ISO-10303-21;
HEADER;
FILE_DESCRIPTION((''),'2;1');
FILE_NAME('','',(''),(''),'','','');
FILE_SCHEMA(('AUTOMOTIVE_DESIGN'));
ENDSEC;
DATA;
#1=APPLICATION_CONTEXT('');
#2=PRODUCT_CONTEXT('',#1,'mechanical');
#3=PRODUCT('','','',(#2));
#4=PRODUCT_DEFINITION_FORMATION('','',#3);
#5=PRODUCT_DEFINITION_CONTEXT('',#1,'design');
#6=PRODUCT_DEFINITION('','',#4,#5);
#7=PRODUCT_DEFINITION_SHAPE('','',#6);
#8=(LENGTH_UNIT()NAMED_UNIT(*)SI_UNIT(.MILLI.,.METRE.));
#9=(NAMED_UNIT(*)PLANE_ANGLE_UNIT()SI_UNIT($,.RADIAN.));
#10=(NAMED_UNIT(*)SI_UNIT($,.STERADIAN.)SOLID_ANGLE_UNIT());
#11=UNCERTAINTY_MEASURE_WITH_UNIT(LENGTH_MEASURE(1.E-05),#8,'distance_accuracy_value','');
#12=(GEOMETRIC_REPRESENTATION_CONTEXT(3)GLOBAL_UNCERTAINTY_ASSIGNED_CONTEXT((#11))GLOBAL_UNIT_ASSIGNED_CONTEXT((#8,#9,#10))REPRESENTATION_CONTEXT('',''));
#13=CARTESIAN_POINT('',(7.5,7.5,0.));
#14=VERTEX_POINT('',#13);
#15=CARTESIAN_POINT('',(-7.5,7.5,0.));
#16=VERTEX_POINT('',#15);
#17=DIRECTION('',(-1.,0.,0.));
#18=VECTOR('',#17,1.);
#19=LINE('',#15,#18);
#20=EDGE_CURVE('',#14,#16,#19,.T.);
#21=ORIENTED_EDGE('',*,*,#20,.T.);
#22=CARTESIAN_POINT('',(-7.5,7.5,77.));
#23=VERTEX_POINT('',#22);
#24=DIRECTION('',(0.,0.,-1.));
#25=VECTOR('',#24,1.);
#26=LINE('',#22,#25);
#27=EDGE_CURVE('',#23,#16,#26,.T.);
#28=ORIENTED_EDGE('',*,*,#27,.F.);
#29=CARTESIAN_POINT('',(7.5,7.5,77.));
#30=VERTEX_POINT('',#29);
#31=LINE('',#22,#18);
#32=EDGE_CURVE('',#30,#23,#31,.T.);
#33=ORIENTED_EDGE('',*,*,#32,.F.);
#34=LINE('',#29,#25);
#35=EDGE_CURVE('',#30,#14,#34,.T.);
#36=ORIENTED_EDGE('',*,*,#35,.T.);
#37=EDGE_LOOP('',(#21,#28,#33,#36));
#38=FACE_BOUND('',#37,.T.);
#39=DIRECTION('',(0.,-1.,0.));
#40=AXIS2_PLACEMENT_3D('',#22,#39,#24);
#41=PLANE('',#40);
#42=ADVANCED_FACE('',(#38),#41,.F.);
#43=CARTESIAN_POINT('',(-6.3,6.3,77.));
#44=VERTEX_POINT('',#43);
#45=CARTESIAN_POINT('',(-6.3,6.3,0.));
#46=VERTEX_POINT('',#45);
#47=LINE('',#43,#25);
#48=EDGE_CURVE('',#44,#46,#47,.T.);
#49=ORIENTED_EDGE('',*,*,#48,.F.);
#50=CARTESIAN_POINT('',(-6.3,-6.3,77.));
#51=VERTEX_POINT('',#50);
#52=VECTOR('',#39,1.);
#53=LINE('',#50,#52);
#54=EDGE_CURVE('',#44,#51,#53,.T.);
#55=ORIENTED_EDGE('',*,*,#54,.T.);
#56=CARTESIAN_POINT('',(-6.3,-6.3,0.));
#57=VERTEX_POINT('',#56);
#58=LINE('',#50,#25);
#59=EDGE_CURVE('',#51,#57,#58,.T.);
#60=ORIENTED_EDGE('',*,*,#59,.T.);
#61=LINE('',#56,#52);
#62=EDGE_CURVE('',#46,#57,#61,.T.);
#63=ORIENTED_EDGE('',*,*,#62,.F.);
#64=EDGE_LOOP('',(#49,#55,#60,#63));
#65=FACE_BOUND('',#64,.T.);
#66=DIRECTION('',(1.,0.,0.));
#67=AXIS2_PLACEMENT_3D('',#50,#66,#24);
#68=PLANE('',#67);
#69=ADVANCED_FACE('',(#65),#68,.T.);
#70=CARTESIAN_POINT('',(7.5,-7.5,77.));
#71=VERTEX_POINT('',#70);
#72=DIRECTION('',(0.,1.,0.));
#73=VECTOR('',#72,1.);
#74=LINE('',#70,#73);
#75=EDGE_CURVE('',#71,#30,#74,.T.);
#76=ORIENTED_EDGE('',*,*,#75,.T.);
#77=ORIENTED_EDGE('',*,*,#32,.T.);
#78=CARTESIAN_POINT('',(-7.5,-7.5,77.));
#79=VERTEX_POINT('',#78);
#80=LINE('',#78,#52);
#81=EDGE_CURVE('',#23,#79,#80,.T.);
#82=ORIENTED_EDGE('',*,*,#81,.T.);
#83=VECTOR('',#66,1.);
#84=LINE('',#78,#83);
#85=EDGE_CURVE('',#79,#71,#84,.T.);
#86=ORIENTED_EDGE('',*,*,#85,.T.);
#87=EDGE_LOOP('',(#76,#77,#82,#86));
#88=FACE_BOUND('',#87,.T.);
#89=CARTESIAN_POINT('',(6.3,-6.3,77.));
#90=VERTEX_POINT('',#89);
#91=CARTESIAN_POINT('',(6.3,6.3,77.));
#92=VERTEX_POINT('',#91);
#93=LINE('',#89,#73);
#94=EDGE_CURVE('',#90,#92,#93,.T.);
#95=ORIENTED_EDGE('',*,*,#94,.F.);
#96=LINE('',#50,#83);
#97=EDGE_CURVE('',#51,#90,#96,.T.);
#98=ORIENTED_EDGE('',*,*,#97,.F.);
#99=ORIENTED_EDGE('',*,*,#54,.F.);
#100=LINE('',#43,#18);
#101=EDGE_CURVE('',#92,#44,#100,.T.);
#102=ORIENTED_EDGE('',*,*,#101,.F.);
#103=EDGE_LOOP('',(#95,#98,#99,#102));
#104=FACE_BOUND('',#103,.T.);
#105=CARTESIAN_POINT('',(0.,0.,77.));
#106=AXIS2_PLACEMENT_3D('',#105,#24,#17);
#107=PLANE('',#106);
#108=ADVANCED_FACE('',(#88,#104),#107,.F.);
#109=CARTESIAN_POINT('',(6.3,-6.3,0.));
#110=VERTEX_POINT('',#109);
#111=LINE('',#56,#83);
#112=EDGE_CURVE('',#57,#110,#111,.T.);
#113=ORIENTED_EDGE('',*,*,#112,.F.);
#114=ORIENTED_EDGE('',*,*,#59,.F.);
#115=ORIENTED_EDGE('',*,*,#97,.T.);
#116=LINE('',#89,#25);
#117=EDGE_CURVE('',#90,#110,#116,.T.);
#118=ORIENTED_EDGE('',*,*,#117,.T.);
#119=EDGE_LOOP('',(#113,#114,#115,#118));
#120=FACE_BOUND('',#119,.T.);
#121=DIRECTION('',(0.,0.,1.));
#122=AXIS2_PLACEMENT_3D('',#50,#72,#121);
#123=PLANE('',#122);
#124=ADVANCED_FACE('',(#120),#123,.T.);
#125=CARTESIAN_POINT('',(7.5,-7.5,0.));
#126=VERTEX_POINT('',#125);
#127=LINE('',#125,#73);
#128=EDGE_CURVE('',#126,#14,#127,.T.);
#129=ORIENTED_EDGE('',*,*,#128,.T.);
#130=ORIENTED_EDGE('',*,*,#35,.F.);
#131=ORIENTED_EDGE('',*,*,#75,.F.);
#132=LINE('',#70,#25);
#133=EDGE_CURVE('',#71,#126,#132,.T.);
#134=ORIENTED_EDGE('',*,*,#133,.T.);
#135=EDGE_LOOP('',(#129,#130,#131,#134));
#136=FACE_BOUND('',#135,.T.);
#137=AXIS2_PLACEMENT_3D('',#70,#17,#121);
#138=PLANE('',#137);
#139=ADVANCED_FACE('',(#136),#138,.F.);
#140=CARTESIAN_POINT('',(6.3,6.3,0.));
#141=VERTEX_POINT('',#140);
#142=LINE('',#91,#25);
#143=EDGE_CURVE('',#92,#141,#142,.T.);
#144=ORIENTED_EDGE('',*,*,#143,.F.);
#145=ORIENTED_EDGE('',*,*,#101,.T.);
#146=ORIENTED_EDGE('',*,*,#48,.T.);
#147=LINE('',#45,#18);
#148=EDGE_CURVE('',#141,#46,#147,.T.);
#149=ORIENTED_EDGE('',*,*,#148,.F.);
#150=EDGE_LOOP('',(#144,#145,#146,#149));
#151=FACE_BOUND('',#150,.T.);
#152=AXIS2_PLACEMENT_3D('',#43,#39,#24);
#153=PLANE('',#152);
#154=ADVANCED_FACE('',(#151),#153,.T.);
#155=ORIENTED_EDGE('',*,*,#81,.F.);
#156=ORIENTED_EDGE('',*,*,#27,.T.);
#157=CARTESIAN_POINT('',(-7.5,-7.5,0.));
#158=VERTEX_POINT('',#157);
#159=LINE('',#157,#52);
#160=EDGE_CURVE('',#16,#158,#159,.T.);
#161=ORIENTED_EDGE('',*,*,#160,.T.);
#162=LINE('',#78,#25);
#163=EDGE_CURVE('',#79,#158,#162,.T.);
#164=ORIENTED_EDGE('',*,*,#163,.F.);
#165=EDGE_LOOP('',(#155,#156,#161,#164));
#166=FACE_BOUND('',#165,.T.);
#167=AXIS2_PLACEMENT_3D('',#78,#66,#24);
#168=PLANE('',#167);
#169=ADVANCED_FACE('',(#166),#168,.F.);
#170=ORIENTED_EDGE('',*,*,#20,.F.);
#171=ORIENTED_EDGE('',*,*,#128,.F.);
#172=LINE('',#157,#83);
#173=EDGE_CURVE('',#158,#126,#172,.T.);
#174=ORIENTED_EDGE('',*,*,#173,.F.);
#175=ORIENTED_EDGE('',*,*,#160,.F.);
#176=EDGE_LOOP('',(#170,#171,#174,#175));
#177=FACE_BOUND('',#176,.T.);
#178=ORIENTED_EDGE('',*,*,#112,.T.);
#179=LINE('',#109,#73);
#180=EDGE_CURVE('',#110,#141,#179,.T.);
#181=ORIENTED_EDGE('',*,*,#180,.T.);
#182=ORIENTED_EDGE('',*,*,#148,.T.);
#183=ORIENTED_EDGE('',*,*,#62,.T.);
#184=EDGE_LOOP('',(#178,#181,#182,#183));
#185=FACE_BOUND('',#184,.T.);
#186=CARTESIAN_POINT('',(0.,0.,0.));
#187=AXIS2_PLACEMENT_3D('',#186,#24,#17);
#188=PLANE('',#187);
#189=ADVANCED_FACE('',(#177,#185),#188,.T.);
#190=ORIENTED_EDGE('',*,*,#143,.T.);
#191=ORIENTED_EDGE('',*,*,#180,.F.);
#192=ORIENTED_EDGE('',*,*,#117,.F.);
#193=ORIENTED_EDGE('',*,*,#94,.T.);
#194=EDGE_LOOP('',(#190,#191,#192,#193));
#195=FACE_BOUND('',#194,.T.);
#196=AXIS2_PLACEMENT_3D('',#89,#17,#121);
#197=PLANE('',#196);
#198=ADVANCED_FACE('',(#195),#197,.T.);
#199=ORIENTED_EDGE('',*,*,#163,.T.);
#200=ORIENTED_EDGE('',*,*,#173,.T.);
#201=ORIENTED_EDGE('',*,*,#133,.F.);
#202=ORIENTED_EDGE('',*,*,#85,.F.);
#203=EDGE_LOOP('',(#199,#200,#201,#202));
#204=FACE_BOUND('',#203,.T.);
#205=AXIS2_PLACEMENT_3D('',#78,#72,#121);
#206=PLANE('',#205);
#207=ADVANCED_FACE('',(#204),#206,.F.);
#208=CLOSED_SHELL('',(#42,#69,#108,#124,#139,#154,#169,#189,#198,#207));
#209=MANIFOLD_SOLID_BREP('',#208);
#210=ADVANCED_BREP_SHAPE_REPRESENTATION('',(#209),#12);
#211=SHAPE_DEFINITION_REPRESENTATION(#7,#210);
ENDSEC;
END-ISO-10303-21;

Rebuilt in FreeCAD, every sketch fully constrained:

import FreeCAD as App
import Part
import Sketcher
from FreeCAD import Vector

doc = App.newDocument("Part")
body = doc.addObject("PartDesign::Body", "Body")

# Sketch on XY plane
sketch1 = body.newObject("Sketcher::SketchObject", "Sketch")
sketch1.AttachmentSupport = (doc.getObject("XY_Plane"), [""])
sketch1.MapMode = "FlatFace"
sketch1.addGeometry([
    Part.LineSegment(Vector(-7.5, 7.5, 0), Vector(-7.5, -7.5, 0)),  # 0
    Part.LineSegment(Vector(-7.5, -7.5, 0), Vector(7.5, -7.5, 0)),  # 1
    Part.LineSegment(Vector(7.5, -7.5, 0), Vector(7.5, 7.5, 0)),  # 2
    Part.LineSegment(Vector(7.5, 7.5, 0), Vector(-7.5, 7.5, 0)),  # 3
    Part.LineSegment(Vector(6.3, -6.3, 0), Vector(-6.3, -6.3, 0)),  # 4
    Part.LineSegment(Vector(-6.3, -6.3, 0), Vector(-6.3, 6.3, 0)),  # 5
    Part.LineSegment(Vector(-6.3, 6.3, 0), Vector(6.3, 6.3, 0)),  # 6
    Part.LineSegment(Vector(6.3, 6.3, 0), Vector(6.3, -6.3, 0)),  # 7
], False)
sketch1.addConstraint([
    Sketcher.Constraint("Coincident", 0, 2, 1, 1),
    Sketcher.Constraint("Coincident", 1, 2, 2, 1),
    Sketcher.Constraint("Coincident", 2, 2, 3, 1),
    Sketcher.Constraint("Coincident", 3, 2, 0, 1),
    Sketcher.Constraint("Coincident", 4, 2, 5, 1),
    Sketcher.Constraint("Coincident", 5, 2, 6, 1),
    Sketcher.Constraint("Coincident", 6, 2, 7, 1),
    Sketcher.Constraint("Coincident", 7, 2, 4, 1),
    Sketcher.Constraint("Vertical", 0),
    Sketcher.Constraint("Horizontal", 1),
    Sketcher.Constraint("Vertical", 2),
    Sketcher.Constraint("Horizontal", 3),
    Sketcher.Constraint("Horizontal", 4),
    Sketcher.Constraint("Vertical", 5),
    Sketcher.Constraint("Horizontal", 6),
    Sketcher.Constraint("Vertical", 7),
    Sketcher.Constraint("Symmetric", 0, 2, 2, 2, -1, 1),
    Sketcher.Constraint("Symmetric", 4, 2, 6, 2, -1, 1),
    Sketcher.Constraint("Equal", 3, 0),
    Sketcher.Constraint("Equal", 6, 5),
    Sketcher.Constraint("DistanceX", 1, 1, 1, 2, 15.0),
    Sketcher.Constraint("DistanceX", 4, 2, 4, 1, 12.6),
])
pad1 = body.newObject("PartDesign::Pad", "Pad")
pad1.Profile = sketch1
pad1.Length = 77

doc.recompute()
